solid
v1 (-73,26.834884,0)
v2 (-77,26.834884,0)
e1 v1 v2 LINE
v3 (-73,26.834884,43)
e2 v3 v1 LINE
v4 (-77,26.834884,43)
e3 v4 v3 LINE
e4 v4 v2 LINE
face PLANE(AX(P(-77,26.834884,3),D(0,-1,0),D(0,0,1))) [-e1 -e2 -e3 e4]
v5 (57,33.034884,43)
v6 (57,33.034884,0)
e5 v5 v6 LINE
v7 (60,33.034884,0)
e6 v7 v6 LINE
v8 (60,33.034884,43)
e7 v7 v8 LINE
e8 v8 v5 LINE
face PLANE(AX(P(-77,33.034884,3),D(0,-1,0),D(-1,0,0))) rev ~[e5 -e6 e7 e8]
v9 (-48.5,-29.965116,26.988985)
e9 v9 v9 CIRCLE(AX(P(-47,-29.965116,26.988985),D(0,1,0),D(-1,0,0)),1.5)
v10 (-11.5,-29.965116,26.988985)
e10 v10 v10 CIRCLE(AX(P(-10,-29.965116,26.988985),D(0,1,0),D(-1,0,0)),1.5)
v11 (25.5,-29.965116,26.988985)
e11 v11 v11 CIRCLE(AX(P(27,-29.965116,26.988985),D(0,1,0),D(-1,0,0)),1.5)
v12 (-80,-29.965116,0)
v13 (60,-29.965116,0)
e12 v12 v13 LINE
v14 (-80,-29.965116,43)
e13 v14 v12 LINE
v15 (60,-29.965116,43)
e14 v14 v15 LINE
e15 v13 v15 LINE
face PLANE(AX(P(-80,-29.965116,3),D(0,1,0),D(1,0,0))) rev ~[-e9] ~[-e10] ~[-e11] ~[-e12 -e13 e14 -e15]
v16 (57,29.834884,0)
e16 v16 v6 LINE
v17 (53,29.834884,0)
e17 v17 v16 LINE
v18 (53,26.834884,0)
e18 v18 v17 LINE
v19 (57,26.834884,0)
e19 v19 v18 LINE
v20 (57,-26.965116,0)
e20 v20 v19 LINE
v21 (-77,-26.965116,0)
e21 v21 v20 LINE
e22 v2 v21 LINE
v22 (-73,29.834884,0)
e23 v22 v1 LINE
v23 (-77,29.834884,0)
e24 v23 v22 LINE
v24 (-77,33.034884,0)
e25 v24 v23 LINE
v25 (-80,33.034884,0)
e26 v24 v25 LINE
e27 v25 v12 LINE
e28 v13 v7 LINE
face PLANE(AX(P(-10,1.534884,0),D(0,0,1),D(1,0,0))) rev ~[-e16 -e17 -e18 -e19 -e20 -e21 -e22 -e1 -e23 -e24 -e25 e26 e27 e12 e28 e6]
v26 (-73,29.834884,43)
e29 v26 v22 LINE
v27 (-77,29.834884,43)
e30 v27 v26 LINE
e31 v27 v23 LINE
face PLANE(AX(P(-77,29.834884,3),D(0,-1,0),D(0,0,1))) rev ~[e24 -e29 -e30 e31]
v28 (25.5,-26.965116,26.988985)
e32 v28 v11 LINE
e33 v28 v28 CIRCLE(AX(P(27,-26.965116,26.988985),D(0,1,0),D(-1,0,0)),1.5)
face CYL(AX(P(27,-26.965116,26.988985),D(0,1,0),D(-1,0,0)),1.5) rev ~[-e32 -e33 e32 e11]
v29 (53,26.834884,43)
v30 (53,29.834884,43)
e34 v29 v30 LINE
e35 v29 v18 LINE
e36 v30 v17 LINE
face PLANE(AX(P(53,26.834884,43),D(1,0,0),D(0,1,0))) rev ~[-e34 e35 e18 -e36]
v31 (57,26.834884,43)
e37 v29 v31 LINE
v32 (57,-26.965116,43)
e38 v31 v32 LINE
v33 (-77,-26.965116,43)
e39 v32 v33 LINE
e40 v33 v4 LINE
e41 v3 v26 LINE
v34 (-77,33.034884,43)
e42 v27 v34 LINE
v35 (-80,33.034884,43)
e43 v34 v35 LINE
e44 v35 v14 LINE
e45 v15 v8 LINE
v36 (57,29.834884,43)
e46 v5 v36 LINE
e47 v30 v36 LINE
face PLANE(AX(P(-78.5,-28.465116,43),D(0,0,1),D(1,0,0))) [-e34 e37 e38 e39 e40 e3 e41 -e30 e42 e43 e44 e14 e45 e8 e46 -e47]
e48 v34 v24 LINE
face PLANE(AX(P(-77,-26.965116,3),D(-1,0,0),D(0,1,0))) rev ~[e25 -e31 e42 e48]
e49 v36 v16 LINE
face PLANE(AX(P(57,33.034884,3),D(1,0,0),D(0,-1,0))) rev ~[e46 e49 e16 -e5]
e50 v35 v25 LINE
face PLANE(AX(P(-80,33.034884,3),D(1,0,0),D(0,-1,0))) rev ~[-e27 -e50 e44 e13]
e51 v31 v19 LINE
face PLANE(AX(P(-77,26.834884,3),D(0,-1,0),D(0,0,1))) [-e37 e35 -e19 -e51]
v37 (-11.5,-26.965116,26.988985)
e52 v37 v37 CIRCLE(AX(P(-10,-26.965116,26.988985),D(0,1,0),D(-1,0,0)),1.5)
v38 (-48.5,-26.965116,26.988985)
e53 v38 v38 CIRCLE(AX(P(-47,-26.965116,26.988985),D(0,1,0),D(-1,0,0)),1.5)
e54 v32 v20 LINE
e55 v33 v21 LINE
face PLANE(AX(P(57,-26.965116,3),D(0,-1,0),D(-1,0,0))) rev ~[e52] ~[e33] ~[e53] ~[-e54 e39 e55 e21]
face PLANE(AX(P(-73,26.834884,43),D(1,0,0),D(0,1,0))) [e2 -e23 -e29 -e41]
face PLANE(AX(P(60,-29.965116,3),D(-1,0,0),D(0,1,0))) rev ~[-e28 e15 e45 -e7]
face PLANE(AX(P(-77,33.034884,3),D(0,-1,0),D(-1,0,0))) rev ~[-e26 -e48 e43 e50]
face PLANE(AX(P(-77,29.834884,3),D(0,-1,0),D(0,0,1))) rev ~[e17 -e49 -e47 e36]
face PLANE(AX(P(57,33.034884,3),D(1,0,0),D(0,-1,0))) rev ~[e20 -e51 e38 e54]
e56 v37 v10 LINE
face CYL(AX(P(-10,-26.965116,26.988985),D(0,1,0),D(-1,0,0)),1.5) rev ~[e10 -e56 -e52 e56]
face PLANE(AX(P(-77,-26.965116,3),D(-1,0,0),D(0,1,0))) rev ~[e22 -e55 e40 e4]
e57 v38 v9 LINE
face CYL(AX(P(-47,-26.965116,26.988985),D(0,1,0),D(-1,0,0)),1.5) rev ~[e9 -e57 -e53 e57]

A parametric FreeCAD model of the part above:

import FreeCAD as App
import Part
import Sketcher
from FreeCAD import Vector

doc = App.newDocument("Part")
body = doc.addObject("PartDesign::Body", "Body")

sketch1 = doc.addObject("Sketcher::SketchObject", "Sketch")
body.addObject(sketch1)
sketch1.AttachmentSupport = (doc.XY_Plane, [""])
sketch1.MapMode = "FlatFace"
sketch1.addGeometry(Part.LineSegment(Vector(-80, 33, 0), Vector(-80, -30, 0)), False)
sketch1.addGeometry(Part.LineSegment(Vector(-80, -30, 0), Vector(60, -30, 0)), False)
sketch1.addGeometry(Part.LineSegment(Vector(60, -30, 0), Vector(60, 33, 0)), False)
sketch1.addGeometry(Part.LineSegment(Vector(60, 33, 0), Vector(-80, 33, 0)), False)
sketch1.addGeometry(Part.Circle(Vector(25, 0, 0), Vector(0, 0, 1), 8), False)
sketch1.addGeometry(Part.Circle(Vector(-45, 1, 0), Vector(0, 0, 1), 8), False)
sketch1.addConstraint(Sketcher.Constraint("Coincident", 0, 2, 1, 1))
sketch1.addConstraint(Sketcher.Constraint("Coincident", 1, 2, 2, 1))
sketch1.addConstraint(Sketcher.Constraint("Coincident", 2, 2, 3, 1))
sketch1.addConstraint(Sketcher.Constraint("Coincident", 3, 2, 0, 1))
sketch1.addConstraint(Sketcher.Constraint("Vertical", 0))
sketch1.addConstraint(Sketcher.Constraint("Horizontal", 1))
sketch1.addConstraint(Sketcher.Constraint("Vertical", 2))
sketch1.addConstraint(Sketcher.Constraint("Horizontal", 3))
sketch1.addConstraint(Sketcher.Constraint("Equal", 4, 5))
sketch1.addConstraint(Sketcher.Constraint("Diameter", 4, 16.0))
sketch1.addConstraint(Sketcher.Constraint("DistanceX", 1, 1, 1, 2, 140.0))
sketch1.addConstraint(Sketcher.Constraint("DistanceY", 0, 2, 0, 1, 63.0))
sketch1.addConstraint(Sketcher.Constraint("DistanceX", -1, 1, 4, 3, 25.0))
sketch1.addConstraint(Sketcher.Constraint("DistanceX", 5, 3, -1, 1, 45.0))
sketch1.addConstraint(Sketcher.Constraint("DistanceX", 0, 2, -1, 1, 80.0))
sketch1.addConstraint(Sketcher.Constraint("DistanceY", 0, 2, 5, 3, 31.0))
sketch1.addConstraint(Sketcher.Constraint("DistanceY", 4, 3, -1, 1, 0.468963))
sketch1.addConstraint(Sketcher.Constraint("DistanceY", -1, 1, 5, 3, 1.034884))
pad1 = doc.addObject("PartDesign::Pad", "Pad")
body.addObject(pad1)
pad1.Profile = sketch1
pad1.Length = 3

sketch2 = doc.addObject("Sketcher::SketchObject", "Sketch001")
body.addObject(sketch2)
sketch2.AttachmentSupport = (doc.XY_Plane, [""])
sketch2.MapMode = "FlatFace"
sketch2.AttachmentOffset = App.Placement(Vector(0, 0, 3), App.Rotation())
sketch2.addGeometry(Part.LineSegment(Vector(-80, -30, 0), Vector(60, -30, 0)), False)
sketch2.addGeometry(Part.LineSegment(Vector(60, -30, 0), Vector(60, 33, 0)), False)
sketch2.addGeometry(Part.LineSegment(Vector(60, 33, 0), Vector(57, 33, 0)), False)
sketch2.addGeometry(Part.LineSegment(Vector(57, 33, 0), Vector(57, -27, 0)), False)
sketch2.addGeometry(Part.LineSegment(Vector(57, -27, 0), Vector(-77, -27, 0)), False)
sketch2.addGeometry(Part.LineSegment(Vector(-77, -27, 0), Vector(-77, 33, 0)), False)
sketch2.addGeometry(Part.LineSegment(Vector(-77, 33, 0), Vector(-80, 33, 0)), False)
sketch2.addGeometry(Part.LineSegment(Vector(-80, 33, 0), Vector(-80, -30, 0)), False)
sketch2.addConstraint(Sketcher.Constraint("Coincident", 0, 2, 1, 1))
sketch2.addConstraint(Sketcher.Constraint("Coincident", 1, 2, 2, 1))
sketch2.addConstraint(Sketcher.Constraint("Coincident", 2, 2, 3, 1))
sketch2.addConstraint(Sketcher.Constraint("Coincident", 3, 2, 4, 1))
sketch2.addConstraint(Sketcher.Constraint("Coincident", 4, 2, 5, 1))
sketch2.addConstraint(Sketcher.Constraint("Coincident", 5, 2, 6, 1))
sketch2.addConstraint(Sketcher.Constraint("Coincident", 6, 2, 7, 1))
sketch2.addConstraint(Sketcher.Constraint("Coincident", 7, 2, 0, 1))
sketch2.addConstraint(Sketcher.Constraint("Horizontal", 0))
sketch2.addConstraint(Sketcher.Constraint("Vertical", 1))
sketch2.addConstraint(Sketcher.Constraint("Horizontal", 2))
sketch2.addConstraint(Sketcher.Constraint("Vertical", 3))
sketch2.addConstraint(Sketcher.Constraint("Horizontal", 4))
sketch2.addConstraint(Sketcher.Constraint("Vertical", 5))
sketch2.addConstraint(Sketcher.Constraint("Horizontal", 6))
sketch2.addConstraint(Sketcher.Constraint("Vertical", 7))
sketch2.addConstraint(Sketcher.Constraint("Horizontal", 2, 2, 5, 2))
sketch2.addConstraint(Sketcher.Constraint("Equal", 2, 6))
sketch2.addConstraint(Sketcher.Constraint("DistanceX", 0, 1, 0, 2, 140.0))
sketch2.addConstraint(Sketcher.Constraint("DistanceX", 2, 2, 2, 1, 3.0))
sketch2.addConstraint(Sketcher.Constraint("DistanceY", 1, 1, 1, 2, 63.0))
sketch2.addConstraint(Sketcher.Constraint("DistanceY", 3, 2, 3, 1, 60.0))
sketch2.addConstraint(Sketcher.Constraint("DistanceX", -1, 1, 0, 2, 60.0))
sketch2.addConstraint(Sketcher.Constraint("DistanceY", 0, 2, -1, 1, 29.965116))
pad2 = doc.addObject("PartDesign::Pad", "Pad001")
body.addObject(pad2)
pad2.Profile = sketch2
pad2.Length = 40

sketch3 = doc.addObject("Sketcher::SketchObject", "Sketch002")
body.addObject(sketch3)
sketch3.AttachmentSupport = (doc.YZ_Plane, [""])
sketch3.MapMode = "FlatFace"
sketch3.AttachmentOffset = App.Placement(Vector(0, 0, -77), App.Rotation())
sketch3.addGeometry(Part.LineSegment(Vector(26.8, 43, 0), Vector(26.8, 3, 0)), False)
sketch3.addGeometry(Part.LineSegment(Vector(26.8, 3, 0), Vector(29.8, 3, 0)), False)
sketch3.addGeometry(Part.LineSegment(Vector(29.8, 3, 0), Vector(29.8, 43, 0)), False)
sketch3.addGeometry(Part.LineSegment(Vector(29.8, 43, 0), Vector(26.8, 43, 0)), False)
sketch3.addConstraint(Sketcher.Constraint("Coincident", 0, 2, 1, 1))
sketch3.addConstraint(Sketcher.Constraint("Coincident", 1, 2, 2, 1))
sketch3.addConstraint(Sketcher.Constraint("Coincident", 2, 2, 3, 1))
sketch3.addConstraint(Sketcher.Constraint("Coincident", 3, 2, 0, 1))
sketch3.addConstraint(Sketcher.Constraint("Vertical", 0))
sketch3.addConstraint(Sketcher.Constraint("Horizontal", 1))
sketch3.addConstraint(Sketcher.Constraint("Vertical", 2))
sketch3.addConstraint(Sketcher.Constraint("Horizontal", 3))
sketch3.addConstraint(Sketcher.Constraint("DistanceX", 1, 1, 1, 2, 3.0))
sketch3.addConstraint(Sketcher.Constraint("DistanceY", 0, 2, 0, 1, 40.0))
sketch3.addConstraint(Sketcher.Constraint("DistanceY", -1, 1, 0, 2, 3.0))
sketch3.addConstraint(Sketcher.Constraint("DistanceX", -1, 1, 0, 2, 26.834884))
pad3 = doc.addObject("PartDesign::Pad", "Pad002")
body.addObject(pad3)
pad3.Profile = sketch3
pad3.Length = 134

sketch4 = doc.addObject("Sketcher::SketchObject", "Sketch003")
body.addObject(sketch4)
sketch4.AttachmentSupport = (doc.XY_Plane, [""])
sketch4.MapMode = "FlatFace"
sketch4.AttachmentOffset = App.Placement(Vector(0, 0, 43), App.Rotation())
sketch4.addGeometry(Part.LineSegment(Vector(-73, 29.8, 0), Vector(-73, 26.8, 0)), False)
sketch4.addGeometry(Part.LineSegment(Vector(-73, 26.8, 0), Vector(53, 26.8, 0)), False)
sketch4.addGeometry(Part.LineSegment(Vector(53, 26.8, 0), Vector(53, 29.8, 0)), False)
sketch4.addGeometry(Part.LineSegment(Vector(53, 29.8, 0), Vector(-73, 29.8, 0)), False)
sketch4.addConstraint(Sketcher.Constraint("Coincident", 0, 2, 1, 1))
sketch4.addConstraint(Sketcher.Constraint("Coincident", 1, 2, 2, 1))
sketch4.addConstraint(Sketcher.Constraint("Coincident", 2, 2, 3, 1))
sketch4.addConstraint(Sketcher.Constraint("Coincident", 3, 2, 0, 1))
sketch4.addConstraint(Sketcher.Constraint("Vertical", 0))
sketch4.addConstraint(Sketcher.Constraint("Horizontal", 1))
sketch4.addConstraint(Sketcher.Constraint("Vertical", 2))
sketch4.addConstraint(Sketcher.Constraint("Horizontal", 3))
sketch4.addConstraint(Sketcher.Constraint("DistanceX", 1, 1, 1, 2, 126.0))
sketch4.addConstraint(Sketcher.Constraint("DistanceY", 0, 2, 0, 1, 3.0))
sketch4.addConstraint(Sketcher.Constraint("DistanceX", 0, 2, -1, 1, 73.0))
sketch4.addConstraint(Sketcher.Constraint("DistanceY", -1, 1, 0, 2, 26.834884))
pocket1 = doc.addObject("PartDesign::Pocket", "Pocket")
body.addObject(pocket1)
pocket1.Profile = sketch4
pocket1.Length = 40

sketch5 = doc.addObject("Sketcher::SketchObject", "Sketch004")
body.addObject(sketch5)
sketch5.AttachmentSupport = (doc.XZ_Plane, [""])
sketch5.MapMode = "FlatFace"
sketch5.AttachmentOffset = App.Placement(Vector(0, 0, 26.965116), App.Rotation())
sketch5.addGeometry(Part.Circle(Vector(-47, 27, 0), Vector(0, 0, 1), 1.5), False)
sketch5.addGeometry(Part.Circle(Vector(27, 27, 0), Vector(0, 0, 1), 1.5), False)
sketch5.addGeometry(Part.Circle(Vector(-10, 27, 0), Vector(0, 0, 1), 1.5), False)
sketch5.addConstraint(Sketcher.Constraint("Equal", 0, 1))
sketch5.addConstraint(Sketcher.Constraint("Equal", 1, 2))
sketch5.addConstraint(Sketcher.Constraint("Horizontal", 0, 3, 1, 3))
sketch5.addConstraint(Sketcher.Constraint("Horizontal", 1, 3, 2, 3))
sketch5.addConstraint(Sketcher.Constraint("Diameter", 0, 3.0))
sketch5.addConstraint(Sketcher.Constraint("DistanceX", 0, 3, -1, 1, 47.0))
sketch5.addConstraint(Sketcher.Constraint("DistanceX", -1, 1, 1, 3, 27.0))
sketch5.addConstraint(Sketcher.Constraint("DistanceX", 2, 3, -1, 1, 10.0))
sketch5.addConstraint(Sketcher.Constraint("DistanceY", -1, 1, 0, 3, 26.988985))
pocket2 = doc.addObject("PartDesign::Pocket", "Pocket001")
body.addObject(pocket2)
pocket2.Profile = sketch5
pocket2.Length = 3
pocket2.Reversed = True

sketch6 = doc.addObject("Sketcher::SketchObject", "Sketch005")
body.addObject(sketch6)
sketch6.AttachmentSupport = (doc.XY_Plane, [""])
sketch6.MapMode = "FlatFace"
sketch6.AttachmentOffset = App.Placement(Vector(0, 0, 3), App.Rotation())
sketch6.addGeometry(Part.LineSegment(Vector(57, 29.8, 0), Vector(57, 33, 0)), False)
sketch6.addGeometry(Part.LineSegment(Vector(57, 33, 0), Vector(-77, 33, 0)), False)
sketch6.addGeometry(Part.LineSegment(Vector(-77, 33, 0), Vector(-77, 29.8, 0)), False)
sketch6.addGeometry(Part.LineSegment(Vector(-77, 29.8, 0), Vector(-73, 29.8, 0)), False)
sketch6.addGeometry(Part.LineSegment(Vector(-73, 29.8, 0), Vector(-73, 26.8, 0)), False)
sketch6.addGeometry(Part.LineSegment(Vector(-73, 26.8, 0), Vector(-77, 26.8, 0)), False)
sketch6.addGeometry(Part.LineSegment(Vector(-77, 26.8, 0), Vector(-77, -27, 0)), False)
sketch6.addGeometry(Part.LineSegment(Vector(-77, -27, 0), Vector(57, -27, 0)), False)
sketch6.addGeometry(Part.LineSegment(Vector(57, -27, 0), Vector(57, 26.8, 0)), False)
sketch6.addGeometry(Part.LineSegment(Vector(57, 26.8, 0), Vector(53, 26.8, 0)), False)
sketch6.addGeometry(Part.LineSegment(Vector(53, 26.8, 0), Vector(53, 29.8, 0)), False)
sketch6.addGeometry(Part.LineSegment(Vector(53, 29.8, 0), Vector(57, 29.8, 0)), False)
sketch6.addGeometry(Part.Circle(Vector(25, -0.5, 0), Vector(0, 0, 1), 8), False)
sketch6.addGeometry(Part.Circle(Vector(-45, 1, 0), Vector(0, 0, 1), 8), False)
sketch6.addConstraint(Sketcher.Constraint("Coincident", 0, 2, 1, 1))
sketch6.addConstraint(Sketcher.Constraint("Coincident", 1, 2, 2, 1))
sketch6.addConstraint(Sketcher.Constraint("Coincident", 2, 2, 3, 1))
sketch6.addConstraint(Sketcher.Constraint("Coincident", 3, 2, 4, 1))
sketch6.addConstraint(Sketcher.Constraint("Coincident", 4, 2, 5, 1))
sketch6.addConstraint(Sketcher.Constraint("Coincident", 5, 2, 6, 1))
sketch6.addConstraint(Sketcher.Constraint("Coincident", 6, 2, 7, 1))
sketch6.addConstraint(Sketcher.Constraint("Coincident", 7, 2, 8, 1))
sketch6.addConstraint(Sketcher.Constraint("Coincident", 8, 2, 9, 1))
sketch6.addConstraint(Sketcher.Constraint("Coincident", 9, 2, 10, 1))
sketch6.addConstraint(Sketcher.Constraint("Coincident", 10, 2, 11, 1))
sketch6.addConstraint(Sketcher.Constraint("Coincident", 11, 2, 0, 1))
sketch6.addConstraint(Sketcher.Constraint("Vertical", 0))
sketch6.addConstraint(Sketcher.Constraint("Horizontal", 1))
sketch6.addConstraint(Sketcher.Constraint("Vertical", 2))
sketch6.addConstraint(Sketcher.Constraint("Horizontal", 3))
sketch6.addConstraint(Sketcher.Constraint("Vertical", 4))
sketch6.addConstraint(Sketcher.Constraint("Horizontal", 5))
sketch6.addConstraint(Sketcher.Constraint("Vertical", 6))
sketch6.addConstraint(Sketcher.Constraint("Horizontal", 7))
sketch6.addConstraint(Sketcher.Constraint("Vertical", 8))
sketch6.addConstraint(Sketcher.Constraint("Horizontal", 9))
sketch6.addConstraint(Sketcher.Constraint("Vertical", 10))
sketch6.addConstraint(Sketcher.Constraint("Horizontal", 11))
sketch6.addConstraint(Sketcher.Constraint("Equal", 12, 13))
sketch6.addConstraint(Sketcher.Constraint("Horizontal", 5, 2, 8, 2))
sketch6.addConstraint(Sketcher.Constraint("Horizontal", 3, 2, 10, 2))
sketch6.addConstraint(Sketcher.Constraint("Vertical", 2, 2, 5, 2))
sketch6.addConstraint(Sketcher.Constraint("Vertical", 0, 2, 7, 2))
sketch6.addConstraint(Sketcher.Constraint("Equal", 5, 9))
sketch6.addConstraint(Sketcher.Constraint("Diameter", 12, 16.0))
sketch6.addConstraint(Sketcher.Constraint("DistanceX", 1, 2, 1, 1, 134.0))
sketch6.addConstraint(Sketcher.Constraint("DistanceX", 3, 1, 3, 2, 4.0))
sketch6.addConstraint(Sketcher.Constraint("DistanceY", 4, 2, 4, 1, 3.0))
sketch6.addConstraint(Sketcher.Constraint("DistanceY", 0, 1, 0, 2, 3.2))
sketch6.addConstraint(Sketcher.Constraint("DistanceY", 6, 2, 6, 1, 53.8))
sketch6.addConstraint(Sketcher.Constraint("DistanceX", -1, 1, 12, 3, 25.0))
sketch6.addConstraint(Sketcher.Constraint("DistanceX", 13, 3, -1, 1, 45.0))
sketch6.addConstraint(Sketcher.Constraint("DistanceX", -1, 1, 0, 2, 57.0))
sketch6.addConstraint(Sketcher.Constraint("DistanceY", 13, 3, 0, 2, 32.0))
sketch6.addConstraint(Sketcher.Constraint("DistanceY", 12, 3, -1, 1, 0.468963))
sketch6.addConstraint(Sketcher.Constraint("DistanceY", -1, 1, 13, 3, 1.034884))
pocket3 = doc.addObject("PartDesign::Pocket", "Pocket002")
body.addObject(pocket3)
pocket3.Profile = sketch6
pocket3.Length = 40

doc.recompute()
